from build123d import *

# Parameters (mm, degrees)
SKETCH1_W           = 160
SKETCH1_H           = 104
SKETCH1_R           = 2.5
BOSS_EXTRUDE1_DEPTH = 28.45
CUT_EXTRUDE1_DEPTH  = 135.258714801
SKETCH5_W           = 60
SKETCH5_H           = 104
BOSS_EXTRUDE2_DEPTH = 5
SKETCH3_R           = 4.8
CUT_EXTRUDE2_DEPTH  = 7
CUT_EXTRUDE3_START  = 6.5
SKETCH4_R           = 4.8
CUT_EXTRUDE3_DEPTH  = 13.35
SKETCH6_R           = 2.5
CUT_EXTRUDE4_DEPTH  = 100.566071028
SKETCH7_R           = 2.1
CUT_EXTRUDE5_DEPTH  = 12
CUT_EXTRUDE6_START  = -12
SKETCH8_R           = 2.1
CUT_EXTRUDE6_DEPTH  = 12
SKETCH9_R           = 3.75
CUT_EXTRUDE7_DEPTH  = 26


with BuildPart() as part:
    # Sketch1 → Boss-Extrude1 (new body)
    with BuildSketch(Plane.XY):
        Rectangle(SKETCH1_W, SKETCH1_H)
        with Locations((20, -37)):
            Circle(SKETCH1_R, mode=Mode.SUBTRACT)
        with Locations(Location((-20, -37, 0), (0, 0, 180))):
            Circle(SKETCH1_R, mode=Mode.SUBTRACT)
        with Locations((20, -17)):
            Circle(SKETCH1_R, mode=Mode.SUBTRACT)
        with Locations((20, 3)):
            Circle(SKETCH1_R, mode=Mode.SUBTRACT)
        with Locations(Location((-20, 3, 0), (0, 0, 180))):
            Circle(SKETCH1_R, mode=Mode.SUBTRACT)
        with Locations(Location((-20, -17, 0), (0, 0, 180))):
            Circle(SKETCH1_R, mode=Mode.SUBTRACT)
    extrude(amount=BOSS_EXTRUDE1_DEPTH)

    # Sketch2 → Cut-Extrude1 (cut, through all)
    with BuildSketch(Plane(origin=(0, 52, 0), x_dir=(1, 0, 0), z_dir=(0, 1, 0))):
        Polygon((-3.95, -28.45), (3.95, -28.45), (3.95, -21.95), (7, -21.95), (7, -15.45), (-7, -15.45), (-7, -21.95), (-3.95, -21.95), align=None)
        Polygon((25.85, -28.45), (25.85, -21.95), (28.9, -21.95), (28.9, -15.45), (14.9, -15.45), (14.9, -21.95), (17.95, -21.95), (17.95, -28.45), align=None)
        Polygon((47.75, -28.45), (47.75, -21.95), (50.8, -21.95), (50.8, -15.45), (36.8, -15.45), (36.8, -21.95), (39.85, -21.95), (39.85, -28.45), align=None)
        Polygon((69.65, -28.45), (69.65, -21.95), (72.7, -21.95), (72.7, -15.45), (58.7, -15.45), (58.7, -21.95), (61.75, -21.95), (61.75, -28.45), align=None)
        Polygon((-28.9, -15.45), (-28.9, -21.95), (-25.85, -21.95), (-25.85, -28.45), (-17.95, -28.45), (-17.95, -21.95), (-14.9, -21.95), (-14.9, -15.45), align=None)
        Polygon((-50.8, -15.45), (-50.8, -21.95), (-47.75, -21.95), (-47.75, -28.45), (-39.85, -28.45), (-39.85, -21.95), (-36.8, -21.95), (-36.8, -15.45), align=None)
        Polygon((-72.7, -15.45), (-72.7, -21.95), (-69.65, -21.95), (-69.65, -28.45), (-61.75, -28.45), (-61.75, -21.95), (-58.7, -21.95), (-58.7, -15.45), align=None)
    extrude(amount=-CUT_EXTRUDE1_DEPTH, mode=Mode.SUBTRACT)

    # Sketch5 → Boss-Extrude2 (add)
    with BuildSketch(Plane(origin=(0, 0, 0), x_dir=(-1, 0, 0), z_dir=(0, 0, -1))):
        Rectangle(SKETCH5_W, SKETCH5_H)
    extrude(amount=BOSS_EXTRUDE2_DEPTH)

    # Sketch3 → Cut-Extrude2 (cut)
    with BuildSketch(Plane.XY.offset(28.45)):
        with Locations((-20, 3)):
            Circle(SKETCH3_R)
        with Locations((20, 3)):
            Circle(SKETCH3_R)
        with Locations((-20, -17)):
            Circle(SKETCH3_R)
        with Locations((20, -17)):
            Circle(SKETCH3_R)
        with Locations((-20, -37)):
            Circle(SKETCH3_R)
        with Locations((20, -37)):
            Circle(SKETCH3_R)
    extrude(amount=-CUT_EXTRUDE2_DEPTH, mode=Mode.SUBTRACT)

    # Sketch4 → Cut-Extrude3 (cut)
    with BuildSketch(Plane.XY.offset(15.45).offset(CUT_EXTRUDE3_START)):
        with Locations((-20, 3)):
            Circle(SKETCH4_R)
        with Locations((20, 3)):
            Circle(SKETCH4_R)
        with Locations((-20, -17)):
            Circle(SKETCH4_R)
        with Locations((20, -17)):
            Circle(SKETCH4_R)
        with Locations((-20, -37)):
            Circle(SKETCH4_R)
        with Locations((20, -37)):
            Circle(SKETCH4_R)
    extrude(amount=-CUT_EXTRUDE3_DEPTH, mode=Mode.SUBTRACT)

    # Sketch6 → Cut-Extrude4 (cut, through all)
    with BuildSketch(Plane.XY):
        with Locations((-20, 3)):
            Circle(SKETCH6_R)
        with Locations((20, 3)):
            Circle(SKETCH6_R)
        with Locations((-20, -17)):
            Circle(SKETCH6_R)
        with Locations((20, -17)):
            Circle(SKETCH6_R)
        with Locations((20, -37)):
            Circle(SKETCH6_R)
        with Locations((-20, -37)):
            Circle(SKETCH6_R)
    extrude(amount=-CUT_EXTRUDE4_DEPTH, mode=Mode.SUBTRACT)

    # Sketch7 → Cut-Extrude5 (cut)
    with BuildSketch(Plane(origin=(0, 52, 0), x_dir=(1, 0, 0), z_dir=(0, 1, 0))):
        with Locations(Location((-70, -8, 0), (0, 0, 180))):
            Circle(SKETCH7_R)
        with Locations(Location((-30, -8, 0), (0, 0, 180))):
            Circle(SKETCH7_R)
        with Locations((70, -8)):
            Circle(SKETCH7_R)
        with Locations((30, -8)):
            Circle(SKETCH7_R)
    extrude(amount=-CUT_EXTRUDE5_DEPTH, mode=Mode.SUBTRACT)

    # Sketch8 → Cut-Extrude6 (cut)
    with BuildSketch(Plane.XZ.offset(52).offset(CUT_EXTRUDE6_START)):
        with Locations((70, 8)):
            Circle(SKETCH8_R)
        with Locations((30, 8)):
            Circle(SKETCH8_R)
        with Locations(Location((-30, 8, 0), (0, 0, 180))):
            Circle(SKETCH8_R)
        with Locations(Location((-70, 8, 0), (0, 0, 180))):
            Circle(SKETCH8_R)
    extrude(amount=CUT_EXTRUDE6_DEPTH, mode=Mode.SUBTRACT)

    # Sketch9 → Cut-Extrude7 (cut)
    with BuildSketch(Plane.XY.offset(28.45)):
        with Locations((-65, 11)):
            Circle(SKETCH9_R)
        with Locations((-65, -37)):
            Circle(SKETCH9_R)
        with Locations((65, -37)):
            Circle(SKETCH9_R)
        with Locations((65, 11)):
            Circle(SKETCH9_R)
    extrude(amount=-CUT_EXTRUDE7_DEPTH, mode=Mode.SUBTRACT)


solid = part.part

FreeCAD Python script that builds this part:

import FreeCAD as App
import Part
import Sketcher
from FreeCAD import Vector
Q = App.Units.Quantity

doc = App.newDocument("Part")
params = doc.addObject("Spreadsheet::Sheet", "Params")
for row, (alias, value) in enumerate([
    ("sketch1_diameter", "5 mm"),
    ("sketch1_width", "160 mm"),
    ("sketch1_height", "104 mm"),
    ("pad1_length", "28.45 mm"),
    ("sketch2_width", "14 mm"),
    ("sketch2_width2", "7.9 mm"),
    ("sketch2_height", "6.5 mm"),
    ("sketch3_width", "60 mm"),
    ("sketch3_height", "104 mm"),
    ("pad2_length", "5 mm"),
    ("sketch4_diameter", "9.6 mm"),
    ("pocket2_length", "7 mm"),
    ("sketch5_diameter", "9.6 mm"),
    ("pocket3_length", "13.35 mm"),
    ("sketch6_diameter", "5 mm"),
    ("sketch7_diameter", "4.2 mm"),
    ("pocket5_length", "12 mm"),
    ("sketch8_diameter", "4.2 mm"),
    ("pocket6_length", "12 mm"),
    ("sketch9_diameter", "7.5 mm"),
    ("pocket7_length", "26 mm"),
], start=1):
    params.set(f"A{row}", alias)
    params.set(f"B{row}", "=" + value)
    params.setAlias(f"B{row}", alias)

body = doc.addObject("PartDesign::Body", "Body")

sketch1 = doc.addObject("Sketcher::SketchObject", "Sketch")
body.addObject(sketch1)
sketch1.AttachmentSupport = (doc.XY_Plane, [""])
sketch1.MapMode = "FlatFace"
sketch1.addGeometry([
    Part.LineSegment(Vector(-80, 52, 0), Vector(-80, -52, 0)),
    Part.LineSegment(Vector(-80, -52, 0), Vector(80, -52, 0)),
    Part.LineSegment(Vector(80, -52, 0), Vector(80, 52, 0)),
    Part.LineSegment(Vector(80, 52, 0), Vector(-80, 52, 0)),
    Part.Circle(Vector(-20, -37, 0), Vector(0, 0, 1), 2.5),
    Part.Circle(Vector(20, -37, 0), Vector(0, 0, 1), 2.5),
    Part.Circle(Vector(-20, -17, 0), Vector(0, 0, 1), 2.5),
    Part.Circle(Vector(-20, 3, 0), Vector(0, 0, 1), 2.5),
    Part.Circle(Vector(20, -17, 0), Vector(0, 0, 1), 2.5),
    Part.Circle(Vector(20, 3, 0), Vector(0, 0, 1), 2.5),
], False)
sketch1.addConstraint([
    Sketcher.Constraint("Coincident", 0, 2, 1, 1),
    Sketcher.Constraint("Coincident", 1, 2, 2, 1),
    Sketcher.Constraint("Coincident", 2, 2, 3, 1),
    Sketcher.Constraint("Coincident", 3, 2, 0, 1),
    Sketcher.Constraint("Vertical", 0),
    Sketcher.Constraint("Horizontal", 1),
    Sketcher.Constraint("Vertical", 2),
    Sketcher.Constraint("Horizontal", 3),
    Sketcher.Constraint("Equal", 4, 5),
    Sketcher.Constraint("Equal", 5, 6),
    Sketcher.Constraint("Equal", 6, 7),
    Sketcher.Constraint("Equal", 7, 8),
    Sketcher.Constraint("Equal", 8, 9),
    Sketcher.Constraint("Symmetric", 0, 2, 2, 2, -1, 1),
    Sketcher.Constraint("Symmetric", 4, 3, 5, 3, -2),
    Sketcher.Constraint("Symmetric", 6, 3, 8, 3, -2),
    Sketcher.Constraint("Symmetric", 7, 3, 9, 3, -2),
    Sketcher.Constraint("Vertical", 4, 3, 6, 3),
    Sketcher.Constraint("Vertical", 6, 3, 7, 3),
    Sketcher.Constraint("Diameter", 4, Q("5 mm")),
    Sketcher.Constraint("DistanceX", 1, 1, 1, 2, Q("160 mm")),
    Sketcher.Constraint("DistanceY", 0, 2, 0, 1, Q("104 mm")),
    Sketcher.Constraint("DistanceX", 4, 3, -1, 1, Q("20 mm")),
    Sketcher.Constraint("DistanceY", 4, 3, -1, 1, Q("37 mm")),
    Sketcher.Constraint("DistanceY", 6, 3, -1, 1, Q("17 mm")),
    Sketcher.Constraint("DistanceY", -1, 1, 7, 3, Q("3 mm")),
])
sketch1.setExpression("Constraints[19]", "Params.sketch1_diameter")
sketch1.setExpression("Constraints[20]", "Params.sketch1_width")
sketch1.setExpression("Constraints[21]", "Params.sketch1_height")
pad1 = doc.addObject("PartDesign::Pad", "Pad")
body.addObject(pad1)
pad1.Profile = sketch1
pad1.setExpression("Length", "Params.pad1_length")

sketch2 = doc.addObject("Sketcher::SketchObject", "Sketch001")
body.addObject(sketch2)
sketch2.AttachmentSupport = (doc.XZ_Plane, [""])
sketch2.MapMode = "FlatFace"
sketch2.AttachmentOffset = App.Placement(Vector(0, 0, -52), App.Rotation())
sketch2.addGeometry([
    Part.LineSegment(Vector(-3.95, 28.45, 0), Vector(3.95, 28.45, 0)),
    Part.LineSegment(Vector(3.95, 28.45, 0), Vector(3.95, 21.95, 0)),
    Part.LineSegment(Vector(3.95, 21.95, 0), Vector(7, 21.95, 0)),
    Part.LineSegment(Vector(7, 21.95, 0), Vector(7, 15.45, 0)),
    Part.LineSegment(Vector(7, 15.45, 0), Vector(-7, 15.45, 0)),
    Part.LineSegment(Vector(-7, 15.45, 0), Vector(-7, 21.95, 0)),
    Part.LineSegment(Vector(-7, 21.95, 0), Vector(-3.95, 21.95, 0)),
    Part.LineSegment(Vector(-3.95, 21.95, 0), Vector(-3.95, 28.45, 0)),
    Part.LineSegment(Vector(25.85, 28.45, 0), Vector(25.85, 21.95, 0)),
    Part.LineSegment(Vector(25.85, 21.95, 0), Vector(28.9, 21.95, 0)),
    Part.LineSegment(Vector(28.9, 21.95, 0), Vector(28.9, 15.45, 0)),
    Part.LineSegment(Vector(28.9, 15.45, 0), Vector(14.9, 15.45, 0)),
    Part.LineSegment(Vector(14.9, 15.45, 0), Vector(14.9, 21.95, 0)),
    Part.LineSegment(Vector(14.9, 21.95, 0), Vector(17.95, 21.95, 0)),
    Part.LineSegment(Vector(17.95, 21.95, 0), Vector(17.95, 28.45, 0)),
    Part.LineSegment(Vector(17.95, 28.45, 0), Vector(25.85, 28.45, 0)),
    Part.LineSegment(Vector(47.75, 28.45, 0), Vector(47.75, 21.95, 0)),
    Part.LineSegment(Vector(47.75, 21.95, 0), Vector(50.8, 21.95, 0)),
    Part.LineSegment(Vector(50.8, 21.95, 0), Vector(50.8, 15.45, 0)),
    Part.LineSegment(Vector(50.8, 15.45, 0), Vector(36.8, 15.45, 0)),
    Part.LineSegment(Vector(36.8, 15.45, 0), Vector(36.8, 21.95, 0)),
    Part.LineSegment(Vector(36.8, 21.95, 0), Vector(39.85, 21.95, 0)),
    Part.LineSegment(Vector(39.85, 21.95, 0), Vector(39.85, 28.45, 0)),
    Part.LineSegment(Vector(39.85, 28.45, 0), Vector(47.75, 28.45, 0)),
    Part.LineSegment(Vector(69.65, 28.45, 0), Vector(69.65, 21.95, 0)),
    Part.LineSegment(Vector(69.65, 21.95, 0), Vector(72.7, 21.95, 0)),
    Part.LineSegment(Vector(72.7, 21.95, 0), Vector(72.7, 15.45, 0)),
    Part.LineSegment(Vector(72.7, 15.45, 0), Vector(58.7, 15.45, 0)),
    Part.LineSegment(Vector(58.7, 15.45, 0), Vector(58.7, 21.95, 0)),
    Part.LineSegment(Vector(58.7, 21.95, 0), Vector(61.75, 21.95, 0)),
    Part.LineSegment(Vector(61.75, 21.95, 0), Vector(61.75, 28.45, 0)),
    Part.LineSegment(Vector(61.75, 28.45, 0), Vector(69.65, 28.45, 0)),
    Part.LineSegment(Vector(-28.9, 15.45, 0), Vector(-28.9, 21.95, 0)),
    Part.LineSegment(Vector(-28.9, 21.95, 0), Vector(-25.85, 21.95, 0)),
    Part.LineSegment(Vector(-25.85, 21.95, 0), Vector(-25.85, 28.45, 0)),
    Part.LineSegment(Vector(-25.85, 28.45, 0), Vector(-17.95, 28.45, 0)),
    Part.LineSegment(Vector(-17.95, 28.45, 0), Vector(-17.95, 21.95, 0)),
    Part.LineSegment(Vector(-17.95, 21.95, 0), Vector(-14.9, 21.95, 0)),
    Part.LineSegment(Vector(-14.9, 21.95, 0), Vector(-14.9, 15.45, 0)),
    Part.LineSegment(Vector(-14.9, 15.45, 0), Vector(-28.9, 15.45, 0)),
    Part.LineSegment(Vector(-50.8, 15.45, 0), Vector(-50.8, 21.95, 0)),
    Part.LineSegment(Vector(-50.8, 21.95, 0), Vector(-47.75, 21.95, 0)),
    Part.LineSegment(Vector(-47.75, 21.95, 0), Vector(-47.75, 28.45, 0)),
    Part.LineSegment(Vector(-47.75, 28.45, 0), Vector(-39.85, 28.45, 0)),
    Part.LineSegment(Vector(-39.85, 28.45, 0), Vector(-39.85, 21.95, 0)),
    Part.LineSegment(Vector(-39.85, 21.95, 0), Vector(-36.8, 21.95, 0)),
    Part.LineSegment(Vector(-36.8, 21.95, 0), Vector(-36.8, 15.45, 0)),
    Part.LineSegment(Vector(-36.8, 15.45, 0), Vector(-50.8, 15.45, 0)),
    Part.LineSegment(Vector(-72.7, 15.45, 0), Vector(-72.7, 21.95, 0)),
    Part.LineSegment(Vector(-72.7, 21.95, 0), Vector(-69.65, 21.95, 0)),
    Part.LineSegment(Vector(-69.65, 21.95, 0), Vector(-69.65, 28.45, 0)),
    Part.LineSegment(Vector(-69.65, 28.45, 0), Vector(-61.75, 28.45, 0)),
    Part.LineSegment(Vector(-61.75, 28.45, 0), Vector(-61.75, 21.95, 0)),
    Part.LineSegment(Vector(-61.75, 21.95, 0), Vector(-58.7, 21.95, 0)),
    Part.LineSegment(Vector(-58.7, 21.95, 0), Vector(-58.7, 15.45, 0)),
    Part.LineSegment(Vector(-58.7, 15.45, 0), Vector(-72.7, 15.45, 0)),
], False)
sketch2.addConstraint([
    Sketcher.Constraint("Coincident", 0, 2, 1, 1),
    Sketcher.Constraint("Coincident", 1, 2, 2, 1),
    Sketcher.Constraint("Coincident", 2, 2, 3, 1),
    Sketcher.Constraint("Coincident", 3, 2, 4, 1),
    Sketcher.Constraint("Coincident", 4, 2, 5, 1),
    Sketcher.Constraint("Coincident", 5, 2, 6, 1),
    Sketcher.Constraint("Coincident", 6, 2, 7, 1),
    Sketcher.Constraint("Coincident", 7, 2, 0, 1),
    Sketcher.Constraint("Coincident", 8, 2, 9, 1),
    Sketcher.Constraint("Coincident", 9, 2, 10, 1),
    Sketcher.Constraint("Coincident", 10, 2, 11, 1),
    Sketcher.Constraint("Coincident", 11, 2, 12, 1),
    Sketcher.Constraint("Coincident", 12, 2, 13, 1),
    Sketcher.Constraint("Coincident", 13, 2, 14, 1),
    Sketcher.Constraint("Coincident", 14, 2, 15, 1),
    Sketcher.Constraint("Coincident", 15, 2, 8, 1),
    Sketcher.Constraint("Coincident", 16, 2, 17, 1),
    Sketcher.Constraint("Coincident", 17, 2, 18, 1),
    Sketcher.Constraint("Coincident", 18, 2, 19, 1),
    Sketcher.Constraint("Coincident", 19, 2, 20, 1),
    Sketcher.Constraint("Coincident", 20, 2, 21, 1),
    Sketcher.Constraint("Coincident", 21, 2, 22, 1),
    Sketcher.Constraint("Coincident", 22, 2, 23, 1),
    Sketcher.Constraint("Coincident", 23, 2, 16, 1),
    Sketcher.Constraint("Coincident", 24, 2, 25, 1),
    Sketcher.Constraint("Coincident", 25, 2, 26, 1),
    Sketcher.Constraint("Coincident", 26, 2, 27, 1),
    Sketcher.Constraint("Coincident", 27, 2, 28, 1),
    Sketcher.Constraint("Coincident", 28, 2, 29, 1),
    Sketcher.Constraint("Coincident", 29, 2, 30, 1),
    Sketcher.Constraint("Coincident", 30, 2, 31, 1),
    Sketcher.Constraint("Coincident", 31, 2, 24, 1),
    Sketcher.Constraint("Coincident", 32, 2, 33, 1),
    Sketcher.Constraint("Coincident", 33, 2, 34, 1),
    Sketcher.Constraint("Coincident", 34, 2, 35, 1),
    Sketcher.Constraint("Coincident", 35, 2, 36, 1),
    Sketcher.Constraint("Coincident", 36, 2, 37, 1),
    Sketcher.Constraint("Coincident", 37, 2, 38, 1),
    Sketcher.Constraint("Coincident", 38, 2, 39, 1),
    Sketcher.Constraint("Coincident", 39, 2, 32, 1),
    Sketcher.Constraint("Coincident", 40, 2, 41, 1),
    Sketcher.Constraint("Coincident", 41, 2, 42, 1),
    Sketcher.Constraint("Coincident", 42, 2, 43, 1),
    Sketcher.Constraint("Coincident", 43, 2, 44, 1),
    Sketcher.Constraint("Coincident", 44, 2, 45, 1),
    Sketcher.Constraint("Coincident", 45, 2, 46, 1),
    Sketcher.Constraint("Coincident", 46, 2, 47, 1),
    Sketcher.Constraint("Coincident", 47, 2, 40, 1),
    Sketcher.Constraint("Coincident", 48, 2, 49, 1),
    Sketcher.Constraint("Coincident", 49, 2, 50, 1),
    Sketcher.Constraint("Coincident", 50, 2, 51, 1),
    Sketcher.Constraint("Coincident", 51, 2, 52, 1),
    Sketcher.Constraint("Coincident", 52, 2, 53, 1),
    Sketcher.Constraint("Coincident", 53, 2, 54, 1),
    Sketcher.Constraint("Coincident", 54, 2, 55, 1),
    Sketcher.Constraint("Coincident", 55, 2, 48, 1),
    Sketcher.Constraint("Horizontal", 0),
    Sketcher.Constraint("Vertical", 1),
    Sketcher.Constraint("Horizontal", 2),
    Sketcher.Constraint("Vertical", 3),
    Sketcher.Constraint("Horizontal", 4),
    Sketcher.Constraint("Vertical", 5),
    Sketcher.Constraint("Horizontal", 6),
    Sketcher.Constraint("Vertical", 7),
    Sketcher.Constraint("Vertical", 8),
    Sketcher.Constraint("Horizontal", 9),
    Sketcher.Constraint("Vertical", 10),
    Sketcher.Constraint("Horizontal", 11),
    Sketcher.Constraint("Vertical", 12),
    Sketcher.Constraint("Horizontal", 13),
    Sketcher.Constraint("Vertical", 14),
    Sketcher.Constraint("Horizontal", 15),
    Sketcher.Constraint("Vertical", 16),
    Sketcher.Constraint("Horizontal", 17),
    Sketcher.Constraint("Vertical", 18),
    Sketcher.Constraint("Horizontal", 19),
    Sketcher.Constraint("Vertical", 20),
    Sketcher.Constraint("Horizontal", 21),
    Sketcher.Constraint("Vertical", 22),
    Sketcher.Constraint("Horizontal", 23),
    Sketcher.Constraint("Vertical", 24),
    Sketcher.Constraint("Horizontal", 25),
    Sketcher.Constraint("Vertical", 26),
    Sketcher.Constraint("Horizontal", 27),
    Sketcher.Constraint("Vertical", 28),
    Sketcher.Constraint("Horizontal", 29),
    Sketcher.Constraint("Vertical", 30),
    Sketcher.Constraint("Horizontal", 31),
    Sketcher.Constraint("Vertical", 32),
    Sketcher.Constraint("Horizontal", 33),
    Sketcher.Constraint("Vertical", 34),
    Sketcher.Constraint("Horizontal", 35),
    Sketcher.Constraint("Vertical", 36),
    Sketcher.Constraint("Horizontal", 37),
    Sketcher.Constraint("Vertical", 38),
    Sketcher.Constraint("Horizontal", 39),
    Sketcher.Constraint("Vertical", 40),
    Sketcher.Constraint("Horizontal", 41),
    Sketcher.Constraint("Vertical", 42),
    Sketcher.Constraint("Horizontal", 43),
    Sketcher.Constraint("Vertical", 44),
    Sketcher.Constraint("Horizontal", 45),
    Sketcher.Constraint("Vertical", 46),
    Sketcher.Constraint("Horizontal", 47),
    Sketcher.Constraint("Vertical", 48),
    Sketcher.Constraint("Horizontal", 49),
    Sketcher.Constraint("Vertical", 50),
    Sketcher.Constraint("Horizontal", 51),
    Sketcher.Constraint("Vertical", 52),
    Sketcher.Constraint("Horizontal", 53),
    Sketcher.Constraint("Vertical", 54),
    Sketcher.Constraint("Horizontal", 55),
    Sketcher.Constraint("Symmetric", 2, 2, 5, 2, -2),
    Sketcher.Constraint("Symmetric", 9, 2, 32, 2, -2),
    Sketcher.Constraint("Symmetric", 15, 2, 34, 2, -2),
    Sketcher.Constraint("Symmetric", 13, 2, 36, 2, -2),
    Sketcher.Constraint("Symmetric", 11, 2, 38, 2, -2),
    Sketcher.Constraint("Symmetric", 17, 2, 40, 2, -2),
    Sketcher.Constraint("Symmetric", 23, 2, 42, 2, -2),
    Sketcher.Constraint("Symmetric", 21, 2, 44, 2, -2),
    Sketcher.Constraint("Symmetric", 19, 2, 46, 2, -2),
    Sketcher.Constraint("Symmetric", 25, 2, 48, 2, -2),
    Sketcher.Constraint("Symmetric", 31, 2, 50, 2, -2),
    Sketcher.Constraint("Symmetric", 29, 2, 52, 2, -2),
    Sketcher.Constraint("Symmetric", 27, 2, 54, 2, -2),
    Sketcher.Constraint("Horizontal", 6, 2, 8, 2),
    Sketcher.Constraint("Horizontal", 4, 2, 10, 2),
    Sketcher.Constraint("Horizontal", 9, 2, 12, 2),
    Sketcher.Constraint("Horizontal", 7, 2, 14, 2),
    Sketcher.Constraint("Horizontal", 13, 2, 16, 2),
    Sketcher.Constraint("Horizontal", 11, 2, 18, 2),
    Sketcher.Constraint("Horizontal", 17, 2, 20, 2),
    Sketcher.Constraint("Horizontal", 15, 2, 22, 2),
    Sketcher.Constraint("Horizontal", 21, 2, 24, 2),
    Sketcher.Constraint("Horizontal", 19, 2, 26, 2),
    Sketcher.Constraint("Horizontal", 25, 2, 28, 2),
    Sketcher.Constraint("Horizontal", 23, 2, 30, 2),
    Sketcher.Constraint("Equal", 2, 6),
    Sketcher.Constraint("Equal", 6, 9),
    Sketcher.Constraint("Equal", 4, 11),
    Sketcher.Constraint("Equal", 9, 13),
    Sketcher.Constraint("Equal", 13, 17),
    Sketcher.Constraint("Equal", 11, 19),
    Sketcher.Constraint("Equal", 17, 21),
    Sketcher.Constraint("Equal", 21, 25),
    Sketcher.Constraint("Equal", 19, 27),
    Sketcher.Constraint("Equal", 25, 29),
    Sketcher.Constraint("Equal", 1, 3),
    Sketcher.Constraint("DistanceX", 4, 2, 4, 1, Q("14 mm")),
    Sketcher.Constraint("DistanceX", 0, 1, 0, 2, Q("7.9 mm")),
    Sketcher.Constraint("DistanceY", 1, 2, 1, 1, Q("6.5 mm")),
    Sketcher.Constraint("DistanceX", 35, 2, 7, 2, Q("14 mm")),
    Sketcher.Constraint("DistanceX", 43, 2, 34, 2, Q("14 mm")),
    Sketcher.Constraint("DistanceX", 51, 2, 42, 2, Q("14 mm")),
    Sketcher.Constraint("DistanceY", -1, 1, 0, 2, Q("28.45 mm")),
])
sketch2.setExpression("Constraints[148]", "Params.sketch2_width")
sketch2.setExpression("Constraints[149]", "Params.sketch2_width2")
sketch2.setExpression("Constraints[150]", "Params.sketch2_height")
pocket1 = doc.addObject("PartDesign::Pocket", "Pocket")
body.addObject(pocket1)
pocket1.Profile = sketch2
pocket1.Type = "ThroughAll"
pocket1.Reversed = True

sketch3 = doc.addObject("Sketcher::SketchObject", "Sketch002")
body.addObject(sketch3)
sketch3.AttachmentSupport = (doc.XY_Plane, [""])
sketch3.MapMode = "FlatFace"
sketch3.addGeometry([
    Part.LineSegment(Vector(30, 52, 0), Vector(30, -52, 0)),
    Part.LineSegment(Vector(30, -52, 0), Vector(-30, -52, 0)),
    Part.LineSegment(Vector(-30, -52, 0), Vector(-30, 52, 0)),
    Part.LineSegment(Vector(-30, 52, 0), Vector(30, 52, 0)),
], False)
sketch3.addConstraint([
    Sketcher.Constraint("Coincident", 0, 2, 1, 1),
    Sketcher.Constraint("Coincident", 1, 2, 2, 1),
    Sketcher.Constraint("Coincident", 2, 2, 3, 1),
    Sketcher.Constraint("Coincident", 3, 2, 0, 1),
    Sketcher.Constraint("Vertical", 0),
    Sketcher.Constraint("Horizontal", 1),
    Sketcher.Constraint("Vertical", 2),
    Sketcher.Constraint("Horizontal", 3),
    Sketcher.Constraint("Symmetric", 0, 2, 2, 2, -1, 1),
    Sketcher.Constraint("DistanceX", 1, 2, 1, 1, Q("60 mm")),
    Sketcher.Constraint("DistanceY", 0, 2, 0, 1, Q("104 mm")),
])
sketch3.setExpression("Constraints[9]", "Params.sketch3_width")
sketch3.setExpression("Constraints[10]", "Params.sketch3_height")
pad2 = doc.addObject("PartDesign::Pad", "Pad001")
body.addObject(pad2)
pad2.Profile = sketch3
pad2.setExpression("Length", "Params.pad2_length")
pad2.Reversed = True

sketch4 = doc.addObject("Sketcher::SketchObject", "Sketch003")
body.addObject(sketch4)
sketch4.AttachmentSupport = (doc.XY_Plane, [""])
sketch4.MapMode = "FlatFace"
sketch4.AttachmentOffset = App.Placement(Vector(0, 0, 28.45), App.Rotation())
sketch4.addGeometry([
    Part.Circle(Vector(-20, 3, 0), Vector(0, 0, 1), 4.8),
    Part.Circle(Vector(20, 3, 0), Vector(0, 0, 1), 4.8),
    Part.Circle(Vector(-20, -17, 0), Vector(0, 0, 1), 4.8),
    Part.Circle(Vector(20, -17, 0), Vector(0, 0, 1), 4.8),
    Part.Circle(Vector(-20, -37, 0), Vector(0, 0, 1), 4.8),
    Part.Circle(Vector(20, -37, 0), Vector(0, 0, 1), 4.8),
], False)
sketch4.addConstraint([
    Sketcher.Constraint("Equal", 0, 1),
    Sketcher.Constraint("Equal", 1, 2),
    Sketcher.Constraint("Equal", 2, 3),
    Sketcher.Constraint("Equal", 3, 4),
    Sketcher.Constraint("Equal", 4, 5),
    Sketcher.Constraint("Symmetric", 0, 3, 1, 3, -2),
    Sketcher.Constraint("Symmetric", 2, 3, 3, 3, -2),
    Sketcher.Constraint("Symmetric", 4, 3, 5, 3, -2),
    Sketcher.Constraint("Vertical", 0, 3, 2, 3),
    Sketcher.Constraint("Vertical", 2, 3, 4, 3),
    Sketcher.Constraint("Diameter", 0, Q("9.6 mm")),
    Sketcher.Constraint("DistanceX", 0, 3, -1, 1, Q("20 mm")),
    Sketcher.Constraint("DistanceY", -1, 1, 0, 3, Q("3 mm")),
    Sketcher.Constraint("DistanceY", 2, 3, -1, 1, Q("17 mm")),
    Sketcher.Constraint("DistanceY", 4, 3, -1, 1, Q("37 mm")),
])
sketch4.setExpression("Constraints[10]", "Params.sketch4_diameter")
pocket2 = doc.addObject("PartDesign::Pocket", "Pocket001")
body.addObject(pocket2)
pocket2.Profile = sketch4
pocket2.setExpression("Length", "Params.pocket2_length")

sketch5 = doc.addObject("Sketcher::SketchObject", "Sketch004")
body.addObject(sketch5)
sketch5.AttachmentSupport = (doc.XY_Plane, [""])
sketch5.MapMode = "FlatFace"
sketch5.AttachmentOffset = App.Placement(Vector(0, 0, 21.95), App.Rotation())
sketch5.addGeometry([
    Part.Circle(Vector(-20, 3, 0), Vector(0, 0, 1), 4.8),
    Part.Circle(Vector(20, 3, 0), Vector(0, 0, 1), 4.8),
    Part.Circle(Vector(-20, -17, 0), Vector(0, 0, 1), 4.8),
    Part.Circle(Vector(20, -17, 0), Vector(0, 0, 1), 4.8),
    Part.Circle(Vector(-20, -37, 0), Vector(0, 0, 1), 4.8),
    Part.Circle(Vector(20, -37, 0), Vector(0, 0, 1), 4.8),
], False)
sketch5.addConstraint([
    Sketcher.Constraint("Equal", 0, 1),
    Sketcher.Constraint("Equal", 1, 2),
    Sketcher.Constraint("Equal", 2, 3),
    Sketcher.Constraint("Equal", 3, 4),
    Sketcher.Constraint("Equal", 4, 5),
    Sketcher.Constraint("Symmetric", 0, 3, 1, 3, -2),
    Sketcher.Constraint("Symmetric", 2, 3, 3, 3, -2),
    Sketcher.Constraint("Symmetric", 4, 3, 5, 3, -2),
    Sketcher.Constraint("Vertical", 0, 3, 2, 3),
    Sketcher.Constraint("Vertical", 2, 3, 4, 3),
    Sketcher.Constraint("Diameter", 0, Q("9.6 mm")),
    Sketcher.Constraint("DistanceX", 0, 3, -1, 1, Q("20 mm")),
    Sketcher.Constraint("DistanceY", -1, 1, 0, 3, Q("3 mm")),
    Sketcher.Constraint("DistanceY", 2, 3, -1, 1, Q("17 mm")),
    Sketcher.Constraint("DistanceY", 4, 3, -1, 1, Q("37 mm")),
])
sketch5.setExpression("Constraints[10]", "Params.sketch5_diameter")
pocket3 = doc.addObject("PartDesign::Pocket", "Pocket002")
body.addObject(pocket3)
pocket3.Profile = sketch5
pocket3.setExpression("Length", "Params.pocket3_length")

sketch6 = doc.addObject("Sketcher::SketchObject", "Sketch005")
body.addObject(sketch6)
sketch6.AttachmentSupport = (doc.XY_Plane, [""])
sketch6.MapMode = "FlatFace"
sketch6.addGeometry([
    Part.Circle(Vector(-20, 3, 0), Vector(0, 0, 1), 2.5),
    Part.Circle(Vector(20, 3, 0), Vector(0, 0, 1), 2.5),
    Part.Circle(Vector(-20, -17, 0), Vector(0, 0, 1), 2.5),
    Part.Circle(Vector(20, -17, 0), Vector(0, 0, 1), 2.5),
    Part.Circle(Vector(20, -37, 0), Vector(0, 0, 1), 2.5),
    Part.Circle(Vector(-20, -37, 0), Vector(0, 0, 1), 2.5),
], False)
sketch6.addConstraint([
    Sketcher.Constraint("Equal", 0, 1),
    Sketcher.Constraint("Equal", 1, 2),
    Sketcher.Constraint("Equal", 2, 3),
    Sketcher.Constraint("Equal", 3, 4),
    Sketcher.Constraint("Equal", 4, 5),
    Sketcher.Constraint("Symmetric", 0, 3, 1, 3, -2),
    Sketcher.Constraint("Symmetric", 2, 3, 3, 3, -2),
    Sketcher.Constraint("Symmetric", 4, 3, 5, 3, -2),
    Sketcher.Constraint("Vertical", 0, 3, 2, 3),
    Sketcher.Constraint("Vertical", 3, 3, 4, 3),
    Sketcher.Constraint("Diameter", 0, Q("5 mm")),
    Sketcher.Constraint("DistanceX", 0, 3, -1, 1, Q("20 mm")),
    Sketcher.Constraint("DistanceY", -1, 1, 0, 3, Q("3 mm")),
    Sketcher.Constraint("DistanceY", 2, 3, -1, 1, Q("17 mm")),
    Sketcher.Constraint("DistanceY", 4, 3, -1, 1, Q("37 mm")),
])
sketch6.setExpression("Constraints[10]", "Params.sketch6_diameter")
pocket4 = doc.addObject("PartDesign::Pocket", "Pocket003")
body.addObject(pocket4)
pocket4.Profile = sketch6
pocket4.Type = "ThroughAll"

sketch7 = doc.addObject("Sketcher::SketchObject", "Sketch006")
body.addObject(sketch7)
sketch7.AttachmentSupport = (doc.XZ_Plane, [""])
sketch7.MapMode = "FlatFace"
sketch7.AttachmentOffset = App.Placement(Vector(0, 0, -52), App.Rotation())
sketch7.addGeometry([
    Part.Circle(Vector(-70, 8, 0), Vector(0, 0, 1), 2.1),
    Part.Circle(Vector(-30, 8, 0), Vector(0, 0, 1), 2.1),
    Part.Circle(Vector(70, 8, 0), Vector(0, 0, 1), 2.1),
    Part.Circle(Vector(30, 8, 0), Vector(0, 0, 1), 2.1),
], False)
sketch7.addConstraint([
    Sketcher.Constraint("Equal", 0, 1),
    Sketcher.Constraint("Equal", 1, 2),
    Sketcher.Constraint("Equal", 2, 3),
    Sketcher.Constraint("Symmetric", 0, 3, 2, 3, -2),
    Sketcher.Constraint("Symmetric", 1, 3, 3, 3, -2),
    Sketcher.Constraint("Horizontal", 0, 3, 1, 3),
    Sketcher.Constraint("Diameter", 0, Q("4.2 mm")),
    Sketcher.Constraint("DistanceX", 0, 3, -1, 1, Q("70 mm")),
    Sketcher.Constraint("DistanceY", -1, 1, 0, 3, Q("8 mm")),
    Sketcher.Constraint("DistanceX", 1, 3, -1, 1, Q("30 mm")),
])
sketch7.setExpression("Constraints[6]", "Params.sketch7_diameter")
pocket5 = doc.addObject("PartDesign::Pocket", "Pocket004")
body.addObject(pocket5)
pocket5.Profile = sketch7
pocket5.setExpression("Length", "Params.pocket5_length")
pocket5.Reversed = True

sketch8 = doc.addObject("Sketcher::SketchObject", "Sketch007")
body.addObject(sketch8)
sketch8.AttachmentSupport = (doc.XZ_Plane, [""])
sketch8.MapMode = "FlatFace"
sketch8.AttachmentOffset = App.Placement(Vector(0, 0, 40), App.Rotation())
sketch8.addGeometry([
    Part.Circle(Vector(70, 8, 0), Vector(0, 0, 1), 2.1),
    Part.Circle(Vector(30, 8, 0), Vector(0, 0, 1), 2.1),
    Part.Circle(Vector(-30, 8, 0), Vector(0, 0, 1), 2.1),
    Part.Circle(Vector(-70, 8, 0), Vector(0, 0, 1), 2.1),
], False)
sketch8.addConstraint([
    Sketcher.Constraint("Equal", 0, 1),
    Sketcher.Constraint("Equal", 1, 2),
    Sketcher.Constraint("Equal", 2, 3),
    Sketcher.Constraint("Symmetric", 1, 3, 2, 3, -2),
    Sketcher.Constraint("Symmetric", 0, 3, 3, 3, -2),
    Sketcher.Constraint("Horizontal", 0, 3, 1, 3),
    Sketcher.Constraint("Diameter", 0, Q("4.2 mm")),
    Sketcher.Constraint("DistanceX", -1, 1, 0, 3, Q("70 mm")),
    Sketcher.Constraint("DistanceY", -1, 1, 0, 3, Q("8 mm")),
    Sketcher.Constraint("DistanceX", -1, 1, 1, 3, Q("30 mm")),
])
sketch8.setExpression("Constraints[6]", "Params.sketch8_diameter")
pocket6 = doc.addObject("PartDesign::Pocket", "Pocket005")
body.addObject(pocket6)
pocket6.Profile = sketch8
pocket6.setExpression("Length", "Params.pocket6_length")
pocket6.Reversed = True

sketch9 = doc.addObject("Sketcher::SketchObject", "Sketch008")
body.addObject(sketch9)
sketch9.AttachmentSupport = (doc.XY_Plane, [""])
sketch9.MapMode = "FlatFace"
sketch9.AttachmentOffset = App.Placement(Vector(0, 0, 28.45), App.Rotation())
sketch9.addGeometry([
    Part.Circle(Vector(-65, 11, 0), Vector(0, 0, 1), 3.75),
    Part.Circle(Vector(-65, -37, 0), Vector(0, 0, 1), 3.75),
    Part.Circle(Vector(65, -37, 0), Vector(0, 0, 1), 3.75),
    Part.Circle(Vector(65, 11, 0), Vector(0, 0, 1), 3.75),
], False)
sketch9.addConstraint([
    Sketcher.Constraint("Equal", 0, 1),
    Sketcher.Constraint("Equal", 1, 2),
    Sketcher.Constraint("Equal", 2, 3),
    Sketcher.Constraint("Symmetric", 1, 3, 2, 3, -2),
    Sketcher.Constraint("Symmetric", 0, 3, 3, 3, -2),
    Sketcher.Constraint("Vertical", 0, 3, 1, 3),
    Sketcher.Constraint("Diameter", 0, Q("7.5 mm")),
    Sketcher.Constraint("DistanceX", 0, 3, -1, 1, Q("65 mm")),
    Sketcher.Constraint("DistanceY", -1, 1, 0, 3, Q("11 mm")),
    Sketcher.Constraint("DistanceY", 1, 3, -1, 1, Q("37 mm")),
])
sketch9.setExpression("Constraints[6]", "Params.sketch9_diameter")
pocket7 = doc.addObject("PartDesign::Pocket", "Pocket006")
body.addObject(pocket7)
pocket7.Profile = sketch9
pocket7.setExpression("Length", "Params.pocket7_length")

doc.recompute()
